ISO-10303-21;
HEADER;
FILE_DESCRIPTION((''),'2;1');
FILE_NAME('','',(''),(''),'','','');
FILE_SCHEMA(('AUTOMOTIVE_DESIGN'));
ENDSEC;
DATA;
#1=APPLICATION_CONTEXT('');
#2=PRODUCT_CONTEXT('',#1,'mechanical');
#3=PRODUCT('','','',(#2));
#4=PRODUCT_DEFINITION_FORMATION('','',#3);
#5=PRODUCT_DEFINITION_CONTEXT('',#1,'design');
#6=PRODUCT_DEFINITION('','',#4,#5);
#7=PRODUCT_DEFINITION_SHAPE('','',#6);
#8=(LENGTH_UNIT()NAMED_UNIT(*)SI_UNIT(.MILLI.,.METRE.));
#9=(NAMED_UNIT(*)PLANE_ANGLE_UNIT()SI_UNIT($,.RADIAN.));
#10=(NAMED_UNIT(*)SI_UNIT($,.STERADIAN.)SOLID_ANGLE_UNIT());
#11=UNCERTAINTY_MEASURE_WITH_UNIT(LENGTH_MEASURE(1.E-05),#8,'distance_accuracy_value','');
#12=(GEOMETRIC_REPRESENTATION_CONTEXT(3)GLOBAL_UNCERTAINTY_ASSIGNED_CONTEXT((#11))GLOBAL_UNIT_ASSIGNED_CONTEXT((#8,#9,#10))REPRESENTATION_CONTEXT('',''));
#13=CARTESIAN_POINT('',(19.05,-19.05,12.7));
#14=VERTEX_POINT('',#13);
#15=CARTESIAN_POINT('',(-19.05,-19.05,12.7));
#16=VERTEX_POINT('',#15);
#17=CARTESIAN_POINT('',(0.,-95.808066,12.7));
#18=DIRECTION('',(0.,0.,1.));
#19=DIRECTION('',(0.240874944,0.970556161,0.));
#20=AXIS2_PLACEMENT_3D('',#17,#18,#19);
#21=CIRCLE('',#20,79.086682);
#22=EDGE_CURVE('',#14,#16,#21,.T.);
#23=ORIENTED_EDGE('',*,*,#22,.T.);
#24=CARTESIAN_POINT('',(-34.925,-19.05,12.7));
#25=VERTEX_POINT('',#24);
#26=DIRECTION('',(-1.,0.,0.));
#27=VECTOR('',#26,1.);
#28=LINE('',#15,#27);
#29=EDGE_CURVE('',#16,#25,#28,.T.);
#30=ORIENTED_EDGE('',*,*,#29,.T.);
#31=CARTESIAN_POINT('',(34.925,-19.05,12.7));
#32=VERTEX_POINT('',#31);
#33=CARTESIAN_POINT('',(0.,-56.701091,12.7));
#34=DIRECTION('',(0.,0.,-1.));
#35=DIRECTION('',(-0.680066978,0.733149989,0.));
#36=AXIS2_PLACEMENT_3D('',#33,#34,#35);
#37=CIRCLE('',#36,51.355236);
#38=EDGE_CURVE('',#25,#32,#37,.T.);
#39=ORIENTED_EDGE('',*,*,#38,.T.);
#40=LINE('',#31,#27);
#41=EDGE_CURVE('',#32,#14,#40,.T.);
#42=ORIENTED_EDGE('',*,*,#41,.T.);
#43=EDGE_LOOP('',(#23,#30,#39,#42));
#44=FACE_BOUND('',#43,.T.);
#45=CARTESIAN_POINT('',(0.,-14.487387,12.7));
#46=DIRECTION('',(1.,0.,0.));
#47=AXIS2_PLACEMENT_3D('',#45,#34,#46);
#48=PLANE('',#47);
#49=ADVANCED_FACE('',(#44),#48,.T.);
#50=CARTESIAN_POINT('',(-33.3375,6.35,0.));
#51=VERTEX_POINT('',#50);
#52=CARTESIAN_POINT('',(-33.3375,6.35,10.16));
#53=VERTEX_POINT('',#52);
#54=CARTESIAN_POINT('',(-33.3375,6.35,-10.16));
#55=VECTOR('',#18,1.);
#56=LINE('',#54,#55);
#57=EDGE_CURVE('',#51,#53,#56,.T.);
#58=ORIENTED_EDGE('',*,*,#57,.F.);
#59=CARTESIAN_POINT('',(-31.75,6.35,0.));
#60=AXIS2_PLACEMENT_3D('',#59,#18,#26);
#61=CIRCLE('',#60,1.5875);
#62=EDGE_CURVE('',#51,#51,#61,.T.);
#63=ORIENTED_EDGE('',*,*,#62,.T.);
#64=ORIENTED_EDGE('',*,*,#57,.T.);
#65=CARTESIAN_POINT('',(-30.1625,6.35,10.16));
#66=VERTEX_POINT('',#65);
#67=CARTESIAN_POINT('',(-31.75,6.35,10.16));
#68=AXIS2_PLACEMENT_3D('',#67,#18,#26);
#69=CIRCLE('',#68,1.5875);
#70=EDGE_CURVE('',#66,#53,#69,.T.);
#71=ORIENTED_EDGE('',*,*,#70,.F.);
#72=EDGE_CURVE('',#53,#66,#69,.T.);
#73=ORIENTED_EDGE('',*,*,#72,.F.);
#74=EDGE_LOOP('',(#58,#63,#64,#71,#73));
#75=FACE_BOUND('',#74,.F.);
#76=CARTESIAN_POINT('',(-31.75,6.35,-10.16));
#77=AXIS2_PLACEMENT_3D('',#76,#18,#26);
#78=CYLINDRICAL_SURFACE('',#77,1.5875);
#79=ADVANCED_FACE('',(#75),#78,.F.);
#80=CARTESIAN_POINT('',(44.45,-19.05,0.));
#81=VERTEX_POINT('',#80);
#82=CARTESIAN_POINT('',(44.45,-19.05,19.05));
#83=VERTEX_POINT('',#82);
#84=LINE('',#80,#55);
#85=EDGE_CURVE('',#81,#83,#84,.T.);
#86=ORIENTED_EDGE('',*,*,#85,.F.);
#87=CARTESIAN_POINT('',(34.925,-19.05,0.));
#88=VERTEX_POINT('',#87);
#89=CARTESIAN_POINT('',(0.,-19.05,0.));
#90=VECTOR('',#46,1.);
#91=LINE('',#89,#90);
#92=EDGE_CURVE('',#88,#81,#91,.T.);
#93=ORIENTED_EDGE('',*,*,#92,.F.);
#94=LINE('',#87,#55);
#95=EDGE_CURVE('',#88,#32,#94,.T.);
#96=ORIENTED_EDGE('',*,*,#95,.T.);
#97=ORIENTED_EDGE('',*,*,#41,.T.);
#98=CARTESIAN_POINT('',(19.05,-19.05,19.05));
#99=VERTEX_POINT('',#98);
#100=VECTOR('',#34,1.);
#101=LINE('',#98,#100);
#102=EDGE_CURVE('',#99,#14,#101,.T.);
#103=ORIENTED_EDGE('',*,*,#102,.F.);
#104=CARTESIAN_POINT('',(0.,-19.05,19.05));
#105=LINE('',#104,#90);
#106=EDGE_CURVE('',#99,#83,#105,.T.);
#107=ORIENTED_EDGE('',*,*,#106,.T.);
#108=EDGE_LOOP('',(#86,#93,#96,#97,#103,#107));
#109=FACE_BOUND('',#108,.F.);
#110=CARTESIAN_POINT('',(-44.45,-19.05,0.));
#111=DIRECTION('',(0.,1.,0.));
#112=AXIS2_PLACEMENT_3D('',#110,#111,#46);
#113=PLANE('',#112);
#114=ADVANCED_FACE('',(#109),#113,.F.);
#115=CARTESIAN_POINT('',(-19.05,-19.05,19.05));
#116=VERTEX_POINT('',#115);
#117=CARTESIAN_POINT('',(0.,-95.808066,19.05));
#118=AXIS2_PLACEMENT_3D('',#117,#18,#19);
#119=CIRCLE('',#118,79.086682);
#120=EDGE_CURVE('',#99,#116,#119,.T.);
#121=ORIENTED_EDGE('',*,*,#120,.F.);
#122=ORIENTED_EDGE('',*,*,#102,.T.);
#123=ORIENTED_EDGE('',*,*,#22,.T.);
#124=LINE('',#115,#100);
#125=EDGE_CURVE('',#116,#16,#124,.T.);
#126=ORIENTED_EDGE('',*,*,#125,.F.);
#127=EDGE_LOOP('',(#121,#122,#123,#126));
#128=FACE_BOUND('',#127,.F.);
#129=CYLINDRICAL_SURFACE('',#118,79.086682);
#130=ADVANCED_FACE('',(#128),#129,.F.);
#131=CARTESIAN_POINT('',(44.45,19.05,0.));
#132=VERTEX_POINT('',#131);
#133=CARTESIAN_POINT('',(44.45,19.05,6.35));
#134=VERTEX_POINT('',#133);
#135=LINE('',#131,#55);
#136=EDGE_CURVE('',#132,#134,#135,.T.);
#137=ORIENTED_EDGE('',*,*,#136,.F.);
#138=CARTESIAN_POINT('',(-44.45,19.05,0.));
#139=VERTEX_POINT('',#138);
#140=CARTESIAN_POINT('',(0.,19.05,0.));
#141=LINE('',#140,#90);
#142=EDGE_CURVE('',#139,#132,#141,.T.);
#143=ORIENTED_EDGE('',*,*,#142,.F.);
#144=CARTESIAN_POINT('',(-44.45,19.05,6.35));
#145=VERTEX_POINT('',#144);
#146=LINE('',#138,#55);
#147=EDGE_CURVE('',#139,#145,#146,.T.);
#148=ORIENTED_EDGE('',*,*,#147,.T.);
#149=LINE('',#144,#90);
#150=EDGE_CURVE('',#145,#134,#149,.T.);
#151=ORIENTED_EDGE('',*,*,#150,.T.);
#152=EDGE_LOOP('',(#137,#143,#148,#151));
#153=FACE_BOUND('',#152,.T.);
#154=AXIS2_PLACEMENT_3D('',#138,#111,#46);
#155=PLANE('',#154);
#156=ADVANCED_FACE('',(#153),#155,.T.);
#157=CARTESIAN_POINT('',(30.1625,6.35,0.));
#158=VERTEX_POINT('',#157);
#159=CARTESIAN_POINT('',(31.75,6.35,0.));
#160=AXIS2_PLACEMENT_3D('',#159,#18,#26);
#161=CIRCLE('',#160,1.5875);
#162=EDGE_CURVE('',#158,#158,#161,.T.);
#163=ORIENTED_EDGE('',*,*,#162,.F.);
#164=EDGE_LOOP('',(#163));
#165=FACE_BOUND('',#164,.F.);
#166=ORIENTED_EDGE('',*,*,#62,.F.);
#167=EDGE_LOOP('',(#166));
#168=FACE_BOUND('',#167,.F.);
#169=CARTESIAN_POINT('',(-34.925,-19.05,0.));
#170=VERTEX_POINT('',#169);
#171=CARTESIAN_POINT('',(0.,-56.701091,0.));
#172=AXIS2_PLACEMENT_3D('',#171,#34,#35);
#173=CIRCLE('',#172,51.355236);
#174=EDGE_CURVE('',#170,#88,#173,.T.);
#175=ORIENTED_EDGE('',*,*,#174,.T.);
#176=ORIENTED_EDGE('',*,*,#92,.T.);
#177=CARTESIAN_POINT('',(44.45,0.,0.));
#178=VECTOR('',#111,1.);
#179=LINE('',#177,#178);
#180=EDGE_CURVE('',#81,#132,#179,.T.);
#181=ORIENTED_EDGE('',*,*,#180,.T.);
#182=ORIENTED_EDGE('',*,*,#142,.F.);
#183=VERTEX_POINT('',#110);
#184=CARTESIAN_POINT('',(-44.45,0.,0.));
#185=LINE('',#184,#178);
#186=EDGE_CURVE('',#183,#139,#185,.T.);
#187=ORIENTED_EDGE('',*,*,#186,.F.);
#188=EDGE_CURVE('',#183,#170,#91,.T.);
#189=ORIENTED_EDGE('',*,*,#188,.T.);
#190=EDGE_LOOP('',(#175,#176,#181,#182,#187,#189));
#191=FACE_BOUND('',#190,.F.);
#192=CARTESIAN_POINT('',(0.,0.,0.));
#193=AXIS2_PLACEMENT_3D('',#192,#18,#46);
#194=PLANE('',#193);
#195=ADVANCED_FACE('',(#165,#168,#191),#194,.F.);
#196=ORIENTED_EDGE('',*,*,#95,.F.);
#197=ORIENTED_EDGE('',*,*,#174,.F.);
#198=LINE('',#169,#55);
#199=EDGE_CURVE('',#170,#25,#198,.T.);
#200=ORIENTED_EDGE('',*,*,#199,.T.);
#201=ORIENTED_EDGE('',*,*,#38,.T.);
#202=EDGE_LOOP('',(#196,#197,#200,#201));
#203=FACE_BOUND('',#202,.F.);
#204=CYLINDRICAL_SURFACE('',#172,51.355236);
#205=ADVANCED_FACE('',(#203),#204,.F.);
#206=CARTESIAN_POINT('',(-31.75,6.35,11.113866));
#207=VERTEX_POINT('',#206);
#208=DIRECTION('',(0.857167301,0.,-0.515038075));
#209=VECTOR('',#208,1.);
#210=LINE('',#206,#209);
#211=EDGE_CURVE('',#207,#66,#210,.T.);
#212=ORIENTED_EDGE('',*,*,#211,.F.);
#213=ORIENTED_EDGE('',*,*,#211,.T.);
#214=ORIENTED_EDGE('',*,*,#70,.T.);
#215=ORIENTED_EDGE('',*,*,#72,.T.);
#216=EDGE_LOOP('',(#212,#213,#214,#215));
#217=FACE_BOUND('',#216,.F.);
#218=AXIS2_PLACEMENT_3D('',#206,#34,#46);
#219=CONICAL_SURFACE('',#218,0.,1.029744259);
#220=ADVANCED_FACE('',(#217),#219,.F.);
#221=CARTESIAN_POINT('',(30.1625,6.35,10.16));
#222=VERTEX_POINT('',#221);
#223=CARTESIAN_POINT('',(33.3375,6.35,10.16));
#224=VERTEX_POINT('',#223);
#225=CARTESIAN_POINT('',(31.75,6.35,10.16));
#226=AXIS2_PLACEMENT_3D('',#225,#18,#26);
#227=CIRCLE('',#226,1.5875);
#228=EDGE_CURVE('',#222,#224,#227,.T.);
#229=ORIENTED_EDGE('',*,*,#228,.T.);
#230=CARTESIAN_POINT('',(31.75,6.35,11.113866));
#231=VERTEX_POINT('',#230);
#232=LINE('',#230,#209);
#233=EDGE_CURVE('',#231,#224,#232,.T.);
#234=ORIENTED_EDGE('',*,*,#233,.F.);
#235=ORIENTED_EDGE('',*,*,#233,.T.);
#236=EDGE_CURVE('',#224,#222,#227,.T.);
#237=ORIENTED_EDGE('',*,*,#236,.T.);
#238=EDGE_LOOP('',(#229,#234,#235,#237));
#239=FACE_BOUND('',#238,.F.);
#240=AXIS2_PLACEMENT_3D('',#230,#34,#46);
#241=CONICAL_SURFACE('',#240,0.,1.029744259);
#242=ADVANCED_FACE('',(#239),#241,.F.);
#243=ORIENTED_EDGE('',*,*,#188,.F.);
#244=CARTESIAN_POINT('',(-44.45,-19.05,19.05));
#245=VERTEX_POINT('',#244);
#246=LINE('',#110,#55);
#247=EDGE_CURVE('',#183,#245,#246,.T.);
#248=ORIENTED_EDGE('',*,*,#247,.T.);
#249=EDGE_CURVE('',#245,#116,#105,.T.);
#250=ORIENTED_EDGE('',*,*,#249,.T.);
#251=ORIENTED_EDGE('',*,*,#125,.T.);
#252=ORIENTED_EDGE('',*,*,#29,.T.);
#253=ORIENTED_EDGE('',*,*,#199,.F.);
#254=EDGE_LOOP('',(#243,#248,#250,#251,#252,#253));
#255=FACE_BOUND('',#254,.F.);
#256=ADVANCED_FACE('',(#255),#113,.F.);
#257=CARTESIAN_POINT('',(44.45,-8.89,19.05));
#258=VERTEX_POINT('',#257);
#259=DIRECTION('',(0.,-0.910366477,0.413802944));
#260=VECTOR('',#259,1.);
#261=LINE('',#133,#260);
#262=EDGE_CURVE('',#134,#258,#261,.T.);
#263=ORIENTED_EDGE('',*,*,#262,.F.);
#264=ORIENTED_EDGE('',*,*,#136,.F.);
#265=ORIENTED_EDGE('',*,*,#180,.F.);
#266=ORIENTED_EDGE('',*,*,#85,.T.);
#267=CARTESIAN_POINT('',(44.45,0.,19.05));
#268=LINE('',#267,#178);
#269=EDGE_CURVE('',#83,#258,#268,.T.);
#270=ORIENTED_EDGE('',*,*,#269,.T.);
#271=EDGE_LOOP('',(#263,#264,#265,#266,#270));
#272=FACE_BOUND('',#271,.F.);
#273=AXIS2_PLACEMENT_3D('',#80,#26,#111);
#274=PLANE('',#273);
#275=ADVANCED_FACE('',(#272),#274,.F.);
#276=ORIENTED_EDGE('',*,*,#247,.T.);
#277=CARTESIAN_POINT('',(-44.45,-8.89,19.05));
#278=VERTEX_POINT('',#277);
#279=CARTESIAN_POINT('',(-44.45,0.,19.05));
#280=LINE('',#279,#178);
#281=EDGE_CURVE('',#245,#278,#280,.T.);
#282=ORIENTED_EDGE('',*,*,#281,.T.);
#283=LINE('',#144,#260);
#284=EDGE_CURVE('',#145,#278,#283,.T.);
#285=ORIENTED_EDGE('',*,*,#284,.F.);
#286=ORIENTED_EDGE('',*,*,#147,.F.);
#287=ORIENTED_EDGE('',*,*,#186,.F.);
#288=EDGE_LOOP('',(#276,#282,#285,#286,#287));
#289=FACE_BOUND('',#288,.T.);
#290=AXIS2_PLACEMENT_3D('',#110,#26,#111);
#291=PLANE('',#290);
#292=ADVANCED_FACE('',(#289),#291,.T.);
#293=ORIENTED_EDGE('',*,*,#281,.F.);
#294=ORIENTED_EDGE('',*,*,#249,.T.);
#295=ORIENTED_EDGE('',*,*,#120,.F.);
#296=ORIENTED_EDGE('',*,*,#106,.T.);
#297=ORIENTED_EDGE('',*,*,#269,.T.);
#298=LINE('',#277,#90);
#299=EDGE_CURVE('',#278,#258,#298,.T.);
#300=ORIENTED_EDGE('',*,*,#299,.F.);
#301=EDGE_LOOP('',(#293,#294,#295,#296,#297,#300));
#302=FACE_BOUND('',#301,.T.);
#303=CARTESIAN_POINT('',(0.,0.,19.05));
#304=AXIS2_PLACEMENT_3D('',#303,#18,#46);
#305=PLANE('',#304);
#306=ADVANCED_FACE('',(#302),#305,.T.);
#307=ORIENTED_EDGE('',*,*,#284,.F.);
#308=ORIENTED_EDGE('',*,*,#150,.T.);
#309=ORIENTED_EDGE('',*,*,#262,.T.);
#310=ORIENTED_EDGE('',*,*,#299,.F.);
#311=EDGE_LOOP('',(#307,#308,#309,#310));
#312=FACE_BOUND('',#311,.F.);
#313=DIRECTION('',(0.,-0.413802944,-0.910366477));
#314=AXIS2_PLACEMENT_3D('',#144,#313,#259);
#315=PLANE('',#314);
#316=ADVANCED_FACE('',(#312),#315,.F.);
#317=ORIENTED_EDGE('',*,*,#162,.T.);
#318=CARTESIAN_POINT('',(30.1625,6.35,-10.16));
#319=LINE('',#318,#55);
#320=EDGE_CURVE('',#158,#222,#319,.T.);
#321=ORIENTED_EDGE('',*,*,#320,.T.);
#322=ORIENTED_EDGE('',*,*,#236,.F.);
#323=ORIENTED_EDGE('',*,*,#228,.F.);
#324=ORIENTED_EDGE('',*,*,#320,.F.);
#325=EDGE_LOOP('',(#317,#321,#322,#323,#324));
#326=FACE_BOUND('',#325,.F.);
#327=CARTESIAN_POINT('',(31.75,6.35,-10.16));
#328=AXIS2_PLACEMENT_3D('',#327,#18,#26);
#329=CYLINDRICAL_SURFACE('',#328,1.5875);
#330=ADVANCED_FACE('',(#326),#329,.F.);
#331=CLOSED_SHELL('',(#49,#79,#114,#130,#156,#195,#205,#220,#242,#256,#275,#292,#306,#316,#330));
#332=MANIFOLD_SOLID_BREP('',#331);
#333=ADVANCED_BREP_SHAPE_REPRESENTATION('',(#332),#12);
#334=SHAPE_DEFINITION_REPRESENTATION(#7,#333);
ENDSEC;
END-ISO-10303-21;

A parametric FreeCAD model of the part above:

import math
import FreeCAD as App
import Part
import Sketcher

V = App.Vector
Q = App.Units.Quantity

doc = App.newDocument("Part")
body = doc.addObject("PartDesign::Body", "Body")

# Sketch on XY plane
sketch1 = body.newObject("Sketcher::SketchObject", "Sketch")
sketch1.AttachmentSupport = (doc.getObject("XY_Plane"), [""])
sketch1.MapMode = "FlatFace"
sketch1.addGeometry(Part.LineSegment(V(-44, 19, 0), V(-44, -19, 0)), False)
sketch1.addGeometry(Part.LineSegment(V(-44, -19, 0), V(44, -19, 0)), False)
sketch1.addGeometry(Part.LineSegment(V(44, -19, 0), V(44, 19, 0)), False)
sketch1.addGeometry(Part.LineSegment(V(44, 19, 0), V(-44, 19, 0)), False)
sketch1.addConstraint(Sketcher.Constraint("Coincident", 0, 2, 1, 1))
sketch1.addConstraint(Sketcher.Constraint("Coincident", 1, 2, 2, 1))
sketch1.addConstraint(Sketcher.Constraint("Coincident", 2, 2, 3, 1))
sketch1.addConstraint(Sketcher.Constraint("Coincident", 3, 2, 0, 1))
sketch1.addConstraint(Sketcher.Constraint("Vertical", 0))
sketch1.addConstraint(Sketcher.Constraint("Horizontal", 1))
sketch1.addConstraint(Sketcher.Constraint("Vertical", 2))
sketch1.addConstraint(Sketcher.Constraint("Horizontal", 3))
sketch1.addConstraint(Sketcher.Constraint("Symmetric", 0, 2, 2, 2, -1, 1))
sketch1.addConstraint(Sketcher.Constraint("DistanceX", 1, 1, 1, 2, Q("3.5 in")))
sketch1.addConstraint(Sketcher.Constraint("DistanceY", 0, 2, 0, 1, Q("1.5 in")))
pad1 = body.newObject("PartDesign::Pad", "Pad")
pad1.Profile = sketch1
pad1.Length = Q("0.75 in")

# Sketch on YZ plane
sketch2 = body.newObject("Sketcher::SketchObject", "Sketch001")
sketch2.AttachmentSupport = (doc.getObject("YZ_Plane"), [""])
sketch2.MapMode = "FlatFace"
sketch2.AttachmentOffset = App.Placement(V(0, 0, -1.75 * 25.4), App.Rotation())
sketch2.addGeometry(Part.LineSegment(V(19, 19, 0), V(19, 6, 0)), False)
sketch2.addGeometry(Part.LineSegment(V(19, 6, 0), V(-9, 19, 0)), False)
sketch2.addGeometry(Part.LineSegment(V(-9, 19, 0), V(19, 19, 0)), False)
sketch2.addConstraint(Sketcher.Constraint("Coincident", 0, 2, 1, 1))
sketch2.addConstraint(Sketcher.Constraint("Coincident", 1, 2, 2, 1))
sketch2.addConstraint(Sketcher.Constraint("Coincident", 2, 2, 0, 1))
sketch2.addConstraint(Sketcher.Constraint("Vertical", 0))
sketch2.addConstraint(Sketcher.Constraint("Horizontal", 2))
sketch2.addConstraint(Sketcher.Constraint("DistanceX", 2, 1, 2, 2, Q("1.1 in")))
sketch2.addConstraint(Sketcher.Constraint("DistanceY", 0, 2, 0, 1, Q("0.5 in")))
sketch2.addConstraint(Sketcher.Constraint("DistanceX", -1, 1, 0, 2, Q("0.75 in")))
sketch2.addConstraint(Sketcher.Constraint("DistanceY", -1, 1, 0, 2, Q("0.25 in")))
pocket1 = body.newObject("PartDesign::Pocket", "Pocket")
pocket1.Profile = sketch2
pocket1.Length = Q("3.5 in")
pocket1.Reversed = True

# Sketch on XY plane
sketch3 = body.newObject("Sketcher::SketchObject", "Sketch002")
sketch3.AttachmentSupport = (doc.getObject("XY_Plane"), [""])
sketch3.MapMode = "FlatFace"
sketch3.AttachmentOffset = App.Placement(V(0, 0, 0.75 * 25.4), App.Rotation())
sketch3.addGeometry(Part.ArcOfCircle(Part.Circle(V(0, -96, 0), V(0, 0, 1), 79), math.radians(76), math.radians(104)), False)
sketch3.addGeometry(Part.LineSegment(V(-19, -19, 0), V(19, -19, 0)), False)
sketch3.addConstraint(Sketcher.Constraint("Coincident", 0, 1, 1, 2))
sketch3.addConstraint(Sketcher.Constraint("Coincident", 1, 1, 0, 2))
sketch3.addConstraint(Sketcher.Constraint("Horizontal", 1))
sketch3.addConstraint(Sketcher.Constraint("PointOnObject", 0, 3, -2))
sketch3.addConstraint(Sketcher.Constraint("DistanceX", 1, 1, 1, 2, Q("1.5 in")))
sketch3.addConstraint(Sketcher.Constraint("DistanceY", 0, 1, -1, 1, Q("0.75 in")))
sketch3.addConstraint(Sketcher.Constraint("Radius", 0, Q("79.086682 mm")))
pocket2 = body.newObject("PartDesign::Pocket", "Pocket001")
pocket2.Profile = sketch3
pocket2.Length = Q("1 in")

# Sketch on XY plane
sketch4 = body.newObject("Sketcher::SketchObject", "Sketch003")
sketch4.AttachmentSupport = (doc.getObject("XY_Plane"), [""])
sketch4.MapMode = "FlatFace"
sketch4.addGeometry(Part.ArcOfCircle(Part.Circle(V(0, -57, 0), V(0, 0, 1), 51), math.radians(47), math.radians(133)), False)
sketch4.addGeometry(Part.LineSegment(V(35, -19, 0), V(19, -19, 0)), False)
sketch4.addGeometry(Part.ArcOfCircle(Part.Circle(V(0, -96, 0), V(0, 0, 1), 79), math.radians(76), math.radians(104)), False)
sketch4.addGeometry(Part.LineSegment(V(-19, -19, 0), V(-35, -19, 0)), False)
sketch4.addConstraint(Sketcher.Constraint("Coincident", 0, 1, 1, 1))
sketch4.addConstraint(Sketcher.Constraint("Coincident", 1, 2, 2, 1))
sketch4.addConstraint(Sketcher.Constraint("Coincident", 2, 2, 3, 1))
sketch4.addConstraint(Sketcher.Constraint("Coincident", 3, 2, 0, 2))
sketch4.addConstraint(Sketcher.Constraint("Horizontal", 1))
sketch4.addConstraint(Sketcher.Constraint("Horizontal", 3))
sketch4.addConstraint(Sketcher.Constraint("Symmetric", 1, 2, 2, 2, -2))
sketch4.addConstraint(Sketcher.Constraint("PointOnObject", 0, 3, -2))
sketch4.addConstraint(Sketcher.Constraint("DistanceX", 2, 2, 1, 2, Q("1.5 in")))
sketch4.addConstraint(Sketcher.Constraint("DistanceX", 1, 2, 1, 1, Q("0.625 in")))
sketch4.addConstraint(Sketcher.Constraint("DistanceY", 0, 1, -1, 1, Q("0.75 in")))
sketch4.addConstraint(Sketcher.Constraint("Radius", 2, Q("79.086682 mm")))
sketch4.addConstraint(Sketcher.Constraint("Radius", 0, Q("51.355236 mm")))
pocket3 = body.newObject("PartDesign::Pocket", "Pocket002")
pocket3.Profile = sketch4
pocket3.Length = Q("0.5 in")
pocket3.Reversed = True

# Sketch on XY plane
sketch5 = body.newObject("Sketcher::SketchObject", "Sketch004")
sketch5.AttachmentSupport = (doc.getObject("XY_Plane"), [""])
sketch5.MapMode = "FlatFace"
sketch5.addGeometry(Part.Circle(V(31.8, 6.3, 0), V(0, 0, 1), 1.6), False)
sketch5.addGeometry(Part.Circle(V(-31.8, 6.3, 0), V(0, 0, 1), 1.6), False)
sketch5.addConstraint(Sketcher.Constraint("Equal", 0, 1))
sketch5.addConstraint(Sketcher.Constraint("Symmetric", 0, 3, 1, 3, -2))
sketch5.addConstraint(Sketcher.Constraint("Diameter", 0, Q("0.125 in")))
sketch5.addConstraint(Sketcher.Constraint("DistanceX", 1, 3, 0, 3, Q("2.5 in")))
sketch5.addConstraint(Sketcher.Constraint("DistanceY", -1, 1, 0, 3, Q("0.25 in")))
doc.recompute()
hole = body.newObject("PartDesign::Hole", "Hole")
hole.Profile = sketch5
hole.ThreadType = "None"
hole.Diameter = Q("0.125 in")
hole.DepthType = "Dimension"
hole.Depth = Q("0.4 in")
hole.DrillPoint = "Angled"
hole.DrillPointAngle = 118
hole.Reversed = True

doc.recompute()
